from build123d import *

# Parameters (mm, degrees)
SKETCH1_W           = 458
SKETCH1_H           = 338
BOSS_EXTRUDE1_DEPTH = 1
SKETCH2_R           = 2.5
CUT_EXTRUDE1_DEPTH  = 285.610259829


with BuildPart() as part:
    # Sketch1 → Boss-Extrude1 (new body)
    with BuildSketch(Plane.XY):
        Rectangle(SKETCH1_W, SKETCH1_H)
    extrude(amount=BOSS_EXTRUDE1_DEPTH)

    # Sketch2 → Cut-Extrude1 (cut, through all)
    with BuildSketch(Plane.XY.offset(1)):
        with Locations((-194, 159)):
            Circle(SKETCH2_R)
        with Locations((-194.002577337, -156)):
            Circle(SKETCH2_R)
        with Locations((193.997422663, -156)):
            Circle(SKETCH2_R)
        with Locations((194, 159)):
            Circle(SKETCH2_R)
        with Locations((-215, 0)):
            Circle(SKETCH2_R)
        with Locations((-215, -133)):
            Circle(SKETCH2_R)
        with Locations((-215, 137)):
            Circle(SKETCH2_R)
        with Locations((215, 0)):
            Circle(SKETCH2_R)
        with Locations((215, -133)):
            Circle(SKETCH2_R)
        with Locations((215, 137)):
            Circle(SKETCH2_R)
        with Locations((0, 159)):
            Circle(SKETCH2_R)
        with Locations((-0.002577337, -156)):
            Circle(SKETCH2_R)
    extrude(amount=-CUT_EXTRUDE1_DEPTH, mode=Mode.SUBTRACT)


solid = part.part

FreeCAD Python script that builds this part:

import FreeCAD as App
import Part
import Sketcher

V = App.Vector
Q = App.Units.Quantity

doc = App.newDocument("Part")
body = doc.addObject("PartDesign::Body", "Body")

# Sketch on XY plane
sketch1 = body.newObject("Sketcher::SketchObject", "Sketch")
sketch1.AttachmentSupport = (doc.getObject("XY_Plane"), [""])
sketch1.MapMode = "FlatFace"
sketch1.addGeometry([
    Part.LineSegment(V(-229, 169, 0), V(-229, -169, 0)),
    Part.LineSegment(V(-229, -169, 0), V(229, -169, 0)),
    Part.LineSegment(V(229, -169, 0), V(229, 169, 0)),
    Part.LineSegment(V(229, 169, 0), V(-229, 169, 0)),
], False)
sketch1.addConstraint([
    Sketcher.Constraint("Coincident", 0, 2, 1, 1),
    Sketcher.Constraint("Coincident", 1, 2, 2, 1),
    Sketcher.Constraint("Coincident", 2, 2, 3, 1),
    Sketcher.Constraint("Coincident", 3, 2, 0, 1),
    Sketcher.Constraint("Vertical", 0),
    Sketcher.Constraint("Horizontal", 1),
    Sketcher.Constraint("Vertical", 2),
    Sketcher.Constraint("Horizontal", 3),
    Sketcher.Constraint("Symmetric", 0, 2, 2, 2, -1, 1),
    Sketcher.Constraint("DistanceX", 1, 1, 1, 2, Q("458 mm")),
    Sketcher.Constraint("DistanceY", 0, 2, 0, 1, Q("338 mm")),
])
pad1 = body.newObject("PartDesign::Pad", "Pad")
pad1.Profile = sketch1
pad1.Length = 1

# Sketch on XY plane
sketch2 = body.newObject("Sketcher::SketchObject", "Sketch001")
sketch2.AttachmentSupport = (doc.getObject("XY_Plane"), [""])
sketch2.MapMode = "FlatFace"
sketch2.AttachmentOffset = App.Placement(V(0, 0, 1), App.Rotation())
sketch2.addGeometry([
    Part.Circle(V(-194, 159, 0), V(0, 0, 1), 2.5),  # 0
    Part.Circle(V(-194, -156, 0), V(0, 0, 1), 2.5),  # 1
    Part.Circle(V(194, -156, 0), V(0, 0, 1), 2.5),  # 2
    Part.Circle(V(194, 159, 0), V(0, 0, 1), 2.5),  # 3
    Part.Circle(V(-215, 0, 0), V(0, 0, 1), 2.5),  # 4
    Part.Circle(V(-215, -133, 0), V(0, 0, 1), 2.5),  # 5
    Part.Circle(V(-215, 137, 0), V(0, 0, 1), 2.5),  # 6
    Part.Circle(V(215, 0, 0), V(0, 0, 1), 2.5),  # 7
    Part.Circle(V(215, -133, 0), V(0, 0, 1), 2.5),  # 8
    Part.Circle(V(215, 137, 0), V(0, 0, 1), 2.5),  # 9
    Part.Circle(V(0, 159, 0), V(0, 0, 1), 2.5),  # 10
    Part.Circle(V(0, -156, 0), V(0, 0, 1), 2.5),  # 11
], False)
sketch2.addConstraint([
    Sketcher.Constraint("Equal", 0, 1),
    Sketcher.Constraint("Equal", 1, 2),
    Sketcher.Constraint("Equal", 2, 3),
    Sketcher.Constraint("Equal", 3, 4),
    Sketcher.Constraint("Equal", 4, 5),
    Sketcher.Constraint("Equal", 5, 6),
    Sketcher.Constraint("Equal", 6, 7),
    Sketcher.Constraint("Equal", 7, 8),
    Sketcher.Constraint("Equal", 8, 9),
    Sketcher.Constraint("Equal", 9, 10),
    Sketcher.Constraint("Equal", 10, 11),
    Sketcher.Constraint("Symmetric", 4, 3, 7, 3, -1, 1),
    Sketcher.Constraint("Symmetric", 0, 3, 3, 3, -2),
    Sketcher.Constraint("Symmetric", 5, 3, 8, 3, -2),
    Sketcher.Constraint("Symmetric", 6, 3, 9, 3, -2),
    Sketcher.Constraint("PointOnObject", 4, 3, -1),
    Sketcher.Constraint("PointOnObject", 10, 3, -2),
    Sketcher.Constraint("Horizontal", 1, 3, 2, 3),
    Sketcher.Constraint("Horizontal", 3, 3, 10, 3),
    Sketcher.Constraint("Horizontal", 2, 3, 11, 3),
    Sketcher.Constraint("Vertical", 4, 3, 5, 3),
    Sketcher.Constraint("Vertical", 5, 3, 6, 3),
    Sketcher.Constraint("Diameter", 0, Q("5 mm")),
    Sketcher.Constraint("DistanceX", 0, 3, -1, 1, Q("194 mm")),
    Sketcher.Constraint("DistanceY", -1, 1, 0, 3, Q("159 mm")),
    Sketcher.Constraint("DistanceY", 1, 3, -1, 1, Q("156 mm")),
    Sketcher.Constraint("DistanceX", 4, 3, -1, 1, Q("215 mm")),
    Sketcher.Constraint("DistanceY", 5, 3, -1, 1, Q("133 mm")),
    Sketcher.Constraint("DistanceY", -1, 1, 6, 3, Q("137 mm")),
    Sketcher.Constraint("DistanceX", 1, 3, 2, 3, Q("388 mm")),
    Sketcher.Constraint("DistanceX", 1, 3, 11, 3, Q("194 mm")),
    Sketcher.Constraint("DistanceX", 1, 3, -1, 1, Q("194.002577 mm")),
])
pocket1 = body.newObject("PartDesign::Pocket", "Pocket")
pocket1.Profile = sketch2
pocket1.Type = "ThroughAll"

doc.recompute()
